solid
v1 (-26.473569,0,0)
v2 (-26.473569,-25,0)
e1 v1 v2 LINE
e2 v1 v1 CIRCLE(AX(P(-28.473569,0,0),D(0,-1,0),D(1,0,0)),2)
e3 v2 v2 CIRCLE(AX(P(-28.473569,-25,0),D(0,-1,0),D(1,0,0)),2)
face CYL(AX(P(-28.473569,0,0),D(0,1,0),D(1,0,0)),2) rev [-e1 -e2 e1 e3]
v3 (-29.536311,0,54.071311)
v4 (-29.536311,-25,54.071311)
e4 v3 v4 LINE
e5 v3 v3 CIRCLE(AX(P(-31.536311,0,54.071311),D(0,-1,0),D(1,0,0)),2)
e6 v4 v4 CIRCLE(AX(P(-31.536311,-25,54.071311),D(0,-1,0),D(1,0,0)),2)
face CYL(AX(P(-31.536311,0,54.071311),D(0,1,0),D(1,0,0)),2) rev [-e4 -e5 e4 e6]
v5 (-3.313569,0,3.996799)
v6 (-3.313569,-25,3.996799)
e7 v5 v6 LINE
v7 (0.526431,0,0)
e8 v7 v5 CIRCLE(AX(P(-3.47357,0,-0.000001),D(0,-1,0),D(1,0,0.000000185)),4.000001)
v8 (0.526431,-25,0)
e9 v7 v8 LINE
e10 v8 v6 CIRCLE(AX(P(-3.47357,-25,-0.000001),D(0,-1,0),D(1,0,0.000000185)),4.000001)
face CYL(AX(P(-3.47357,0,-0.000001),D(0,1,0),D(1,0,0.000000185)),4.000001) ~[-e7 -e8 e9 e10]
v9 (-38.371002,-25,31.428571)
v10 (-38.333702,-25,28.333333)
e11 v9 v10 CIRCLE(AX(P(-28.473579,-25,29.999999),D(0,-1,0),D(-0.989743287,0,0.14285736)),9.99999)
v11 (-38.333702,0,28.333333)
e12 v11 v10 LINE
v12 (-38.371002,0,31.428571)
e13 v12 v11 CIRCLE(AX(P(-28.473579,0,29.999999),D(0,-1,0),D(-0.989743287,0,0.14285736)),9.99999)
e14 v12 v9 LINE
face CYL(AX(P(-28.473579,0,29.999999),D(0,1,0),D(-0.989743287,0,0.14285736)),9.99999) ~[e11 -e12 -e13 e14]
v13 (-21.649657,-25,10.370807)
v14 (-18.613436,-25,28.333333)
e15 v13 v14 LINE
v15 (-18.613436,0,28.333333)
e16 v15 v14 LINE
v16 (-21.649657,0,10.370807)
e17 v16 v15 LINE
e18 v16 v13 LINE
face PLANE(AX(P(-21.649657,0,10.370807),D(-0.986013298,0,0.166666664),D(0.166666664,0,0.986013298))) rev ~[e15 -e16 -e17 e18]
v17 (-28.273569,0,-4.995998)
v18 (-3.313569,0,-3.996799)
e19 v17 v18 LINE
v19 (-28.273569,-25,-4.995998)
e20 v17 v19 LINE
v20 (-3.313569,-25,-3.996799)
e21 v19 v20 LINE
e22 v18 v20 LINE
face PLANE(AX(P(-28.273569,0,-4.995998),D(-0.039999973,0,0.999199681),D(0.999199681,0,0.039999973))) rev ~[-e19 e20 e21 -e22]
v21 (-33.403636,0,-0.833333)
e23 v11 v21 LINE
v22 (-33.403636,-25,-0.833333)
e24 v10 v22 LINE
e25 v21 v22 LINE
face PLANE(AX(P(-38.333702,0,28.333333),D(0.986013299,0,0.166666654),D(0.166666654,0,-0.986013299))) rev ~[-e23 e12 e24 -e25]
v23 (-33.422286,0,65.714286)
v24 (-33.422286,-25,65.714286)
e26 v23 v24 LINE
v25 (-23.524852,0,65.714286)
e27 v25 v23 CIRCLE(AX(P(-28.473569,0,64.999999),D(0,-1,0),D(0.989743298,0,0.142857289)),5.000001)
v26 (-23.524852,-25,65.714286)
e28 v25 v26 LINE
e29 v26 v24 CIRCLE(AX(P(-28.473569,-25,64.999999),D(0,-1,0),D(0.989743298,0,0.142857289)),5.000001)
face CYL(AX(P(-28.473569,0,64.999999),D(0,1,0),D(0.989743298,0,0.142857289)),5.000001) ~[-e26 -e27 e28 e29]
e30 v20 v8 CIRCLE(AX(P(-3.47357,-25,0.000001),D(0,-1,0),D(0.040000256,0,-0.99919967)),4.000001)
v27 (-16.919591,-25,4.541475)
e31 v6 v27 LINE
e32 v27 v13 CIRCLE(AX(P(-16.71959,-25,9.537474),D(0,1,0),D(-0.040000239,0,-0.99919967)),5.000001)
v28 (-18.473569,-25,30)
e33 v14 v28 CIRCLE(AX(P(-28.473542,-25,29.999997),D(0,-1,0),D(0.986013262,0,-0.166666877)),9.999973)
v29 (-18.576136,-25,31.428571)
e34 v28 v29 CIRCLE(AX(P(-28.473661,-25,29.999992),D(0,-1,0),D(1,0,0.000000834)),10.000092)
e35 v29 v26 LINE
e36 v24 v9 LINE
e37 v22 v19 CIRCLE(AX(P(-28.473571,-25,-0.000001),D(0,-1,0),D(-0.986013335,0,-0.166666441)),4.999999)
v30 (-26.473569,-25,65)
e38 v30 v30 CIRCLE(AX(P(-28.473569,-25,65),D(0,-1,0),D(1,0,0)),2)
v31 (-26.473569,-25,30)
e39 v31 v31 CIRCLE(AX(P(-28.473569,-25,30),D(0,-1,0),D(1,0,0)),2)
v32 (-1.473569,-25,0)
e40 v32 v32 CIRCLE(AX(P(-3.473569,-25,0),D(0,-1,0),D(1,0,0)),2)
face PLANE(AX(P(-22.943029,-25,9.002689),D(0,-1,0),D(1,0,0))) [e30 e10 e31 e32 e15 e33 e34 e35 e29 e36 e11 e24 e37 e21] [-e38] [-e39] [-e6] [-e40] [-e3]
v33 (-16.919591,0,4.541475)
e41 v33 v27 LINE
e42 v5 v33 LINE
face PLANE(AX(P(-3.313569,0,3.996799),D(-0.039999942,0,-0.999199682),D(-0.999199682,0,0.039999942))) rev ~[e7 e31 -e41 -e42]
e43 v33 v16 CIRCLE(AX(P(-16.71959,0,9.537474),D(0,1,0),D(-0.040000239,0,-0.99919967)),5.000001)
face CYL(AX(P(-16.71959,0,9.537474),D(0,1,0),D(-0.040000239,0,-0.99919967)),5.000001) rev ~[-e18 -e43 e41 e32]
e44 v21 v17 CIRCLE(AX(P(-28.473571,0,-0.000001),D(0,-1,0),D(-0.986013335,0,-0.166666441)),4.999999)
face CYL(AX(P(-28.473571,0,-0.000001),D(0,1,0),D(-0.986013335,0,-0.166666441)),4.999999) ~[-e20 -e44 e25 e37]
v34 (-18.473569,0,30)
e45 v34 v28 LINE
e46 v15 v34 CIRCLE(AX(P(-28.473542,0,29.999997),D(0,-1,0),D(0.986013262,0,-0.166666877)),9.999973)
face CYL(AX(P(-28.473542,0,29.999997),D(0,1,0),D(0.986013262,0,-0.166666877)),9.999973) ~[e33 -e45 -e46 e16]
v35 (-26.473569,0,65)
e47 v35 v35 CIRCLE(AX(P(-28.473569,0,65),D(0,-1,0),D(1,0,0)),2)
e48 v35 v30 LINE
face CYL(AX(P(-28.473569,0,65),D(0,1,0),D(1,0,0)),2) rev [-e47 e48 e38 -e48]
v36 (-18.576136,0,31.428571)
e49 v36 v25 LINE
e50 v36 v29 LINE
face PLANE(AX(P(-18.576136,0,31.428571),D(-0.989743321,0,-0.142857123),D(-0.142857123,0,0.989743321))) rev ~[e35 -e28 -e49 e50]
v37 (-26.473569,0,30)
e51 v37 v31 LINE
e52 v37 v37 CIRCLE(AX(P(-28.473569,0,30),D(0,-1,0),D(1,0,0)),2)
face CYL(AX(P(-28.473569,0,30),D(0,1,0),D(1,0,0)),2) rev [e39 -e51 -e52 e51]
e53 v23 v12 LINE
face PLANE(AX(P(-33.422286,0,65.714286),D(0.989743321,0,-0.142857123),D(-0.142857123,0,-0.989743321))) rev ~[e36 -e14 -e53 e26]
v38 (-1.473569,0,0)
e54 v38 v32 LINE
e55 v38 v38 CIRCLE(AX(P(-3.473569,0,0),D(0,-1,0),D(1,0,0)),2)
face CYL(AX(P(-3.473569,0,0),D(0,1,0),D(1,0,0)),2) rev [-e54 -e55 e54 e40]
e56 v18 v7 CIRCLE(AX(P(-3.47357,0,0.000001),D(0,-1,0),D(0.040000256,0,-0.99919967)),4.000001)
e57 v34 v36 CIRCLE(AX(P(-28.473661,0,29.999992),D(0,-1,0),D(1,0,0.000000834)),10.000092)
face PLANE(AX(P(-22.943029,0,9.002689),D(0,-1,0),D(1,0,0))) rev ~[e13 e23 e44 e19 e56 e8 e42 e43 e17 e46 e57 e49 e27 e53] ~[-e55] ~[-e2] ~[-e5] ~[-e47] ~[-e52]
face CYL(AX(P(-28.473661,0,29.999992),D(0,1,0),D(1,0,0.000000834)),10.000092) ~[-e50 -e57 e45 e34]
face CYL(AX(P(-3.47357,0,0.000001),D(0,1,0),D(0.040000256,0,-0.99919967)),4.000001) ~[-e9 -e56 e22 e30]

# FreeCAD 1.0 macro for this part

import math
import FreeCAD as App
import Part
import Sketcher

V = App.Vector
Q = App.Units.Quantity

doc = App.newDocument("Part")
body = doc.addObject("PartDesign::Body", "Body")

# Sketch on XZ plane
sketch1 = body.newObject("Sketcher::SketchObject", "Sketch")
sketch1.AttachmentSupport = (doc.getObject("XZ_Plane"), [""])
sketch1.MapMode = "FlatFace"
sketch1.addGeometry(Part.LineSegment(V(-28.273569, -4.995998, 0), V(-3.313569, -3.996799, 0)), False)
sketch1.addGeometry(Part.ArcOfCircle(Part.Circle(V(-3.47357, 0.000001, 0), V(0, 0, 1), 4.000001), math.radians(-87.707543), math.radians(-0.000011)), False)
sketch1.addGeometry(Part.ArcOfCircle(Part.Circle(V(-3.47357, -0.000001, 0), V(0, 0, 1), 4.000001), math.radians(0.000011), math.radians(87.707543)), False)
sketch1.addGeometry(Part.LineSegment(V(-3.313569, 3.996799, 0), V(-16.919591, 4.541475, 0)), False)
sketch1.addGeometry(Part.ArcOfCircle(Part.Circle(V(-16.71959, 9.537474, 0), V(0, 0, 1), 5.000001), math.radians(170.405937), math.radians(267.707544)), False)
sketch1.addGeometry(Part.LineSegment(V(-21.649657, 10.370807, 0), V(-18.613436, 28.333333, 0)), False)
sketch1.addGeometry(Part.ArcOfCircle(Part.Circle(V(-28.473542, 29.999997, 0), V(0, 0, 1), 9.999973), math.radians(-9.59408), math.radians(0.000016)), False)
sketch1.addGeometry(Part.ArcOfCircle(Part.Circle(V(-28.473661, 29.999992, 0), V(0, 0, 1), 10.000092), math.radians(0.000048), math.radians(8.21318)), False)
sketch1.addGeometry(Part.LineSegment(V(-18.576136, 31.428571, 0), V(-23.524852, 65.714286, 0)), False)
sketch1.addGeometry(Part.ArcOfCircle(Part.Circle(V(-28.473569, 64.999999, 0), V(0, 0, 1), 5.000001), math.radians(8.213219), math.radians(171.786781)), False)
sketch1.addGeometry(Part.LineSegment(V(-33.422286, 65.714286, 0), V(-38.371002, 31.428571, 0)), False)
sketch1.addGeometry(Part.ArcOfCircle(Part.Circle(V(-28.473579, 29.999999, 0), V(0, 0, 1), 9.99999), math.radians(171.786777), math.radians(189.594073)), False)
sketch1.addGeometry(Part.LineSegment(V(-38.333702, 28.333333, 0), V(-33.403636, -0.833333, 0)), False)
sketch1.addGeometry(Part.ArcOfCircle(Part.Circle(V(-28.473571, -0.000001, 0), V(0, 0, 1), 4.999999), math.radians(-170.405945), math.radians(-87.707538)), False)
sketch1.addGeometry(Part.Circle(V(-28.473569, 0, 0), V(0, 0, 1), 2), False)
sketch1.addGeometry(Part.Circle(V(-28.473569, 30, 0), V(0, 0, 1), 2), False)
sketch1.addGeometry(Part.Circle(V(-3.473569, 0, 0), V(0, 0, 1), 2), False)
sketch1.addGeometry(Part.Circle(V(-31.536311, 54.071311, 0), V(0, 0, 1), 2), False)
sketch1.addGeometry(Part.Circle(V(-28.473569, 65, 0), V(0, 0, 1), 2), False)
sketch1.addConstraint(Sketcher.Constraint("Coincident", 0, 2, 1, 1))
sketch1.addConstraint(Sketcher.Constraint("Coincident", 1, 2, 2, 1))
sketch1.addConstraint(Sketcher.Constraint("Coincident", 2, 2, 3, 1))
sketch1.addConstraint(Sketcher.Constraint("Coincident", 3, 2, 4, 2))
sketch1.addConstraint(Sketcher.Constraint("Coincident", 4, 1, 5, 1))
sketch1.addConstraint(Sketcher.Constraint("Coincident", 5, 2, 6, 1))
sketch1.addConstraint(Sketcher.Constraint("Coincident", 6, 2, 7, 1))
sketch1.addConstraint(Sketcher.Constraint("Coincident", 7, 2, 8, 1))
sketch1.addConstraint(Sketcher.Constraint("Coincident", 8, 2, 9, 1))
sketch1.addConstraint(Sketcher.Constraint("Coincident", 9, 2, 10, 1))
sketch1.addConstraint(Sketcher.Constraint("Coincident", 10, 2, 11, 1))
sketch1.addConstraint(Sketcher.Constraint("Coincident", 11, 2, 12, 1))
sketch1.addConstraint(Sketcher.Constraint("Coincident", 12, 2, 13, 1))
sketch1.addConstraint(Sketcher.Constraint("Coincident", 13, 2, 0, 1))
sketch1.addConstraint(Sketcher.Constraint("Coincident", 2, 3, 1, 3))
sketch1.addConstraint(Sketcher.Constraint("Coincident", 14, 3, 13, 3))
sketch1.addConstraint(Sketcher.Constraint("Coincident", 16, 3, 1, 3))
sketch1.addConstraint(Sketcher.Constraint("Coincident", 18, 3, 9, 3))
sketch1.addConstraint(Sketcher.Constraint("PointOnObject", 1, 3, -1))
sketch1.addConstraint(Sketcher.Constraint("PointOnObject", 13, 3, -1))
sketch1.addConstraint(Sketcher.Constraint("PointOnObject", 1, 2, -1))
sketch1.addConstraint(Sketcher.Constraint("Diameter", 14, Q("4 mm")))
sketch1.addConstraint(Sketcher.Constraint("Diameter", 15, Q("4 mm")))
sketch1.addConstraint(Sketcher.Constraint("Diameter", 16, Q("4 mm")))
sketch1.addConstraint(Sketcher.Constraint("Diameter", 17, Q("4 mm")))
sketch1.addConstraint(Sketcher.Constraint("Diameter", 18, Q("4 mm")))
sketch1.addConstraint(Sketcher.Constraint("Radius", 1, Q("4.000001 mm")))
sketch1.addConstraint(Sketcher.Constraint("Radius", 4, Q("5.000001 mm")))
sketch1.addConstraint(Sketcher.Constraint("Radius", 9, Q("5.000001 mm")))
sketch1.addConstraint(Sketcher.Constraint("Radius", 13, Q("4.999999 mm")))
sketch1.addConstraint(Sketcher.Constraint("DistanceY", -1, 1, 9, 3, Q("64.999999 mm")))
sketch1.addConstraint(Sketcher.Constraint("DistanceY", -1, 1, 11, 3, Q("29.999999 mm")))
sketch1.addConstraint(Sketcher.Constraint("DistanceY", -1, 1, 15, 3, Q("30 mm")))
sketch1.addConstraint(Sketcher.Constraint("DistanceY", -1, 1, 6, 2, Q("30 mm")))
sketch1.addConstraint(Sketcher.Constraint("DistanceX", 9, 3, 1, 3, Q("24.999999 mm")))
sketch1.addConstraint(Sketcher.Constraint("DistanceX", 13, 3, 2, 3, Q("25.000001 mm")))
sketch1.addConstraint(Sketcher.Constraint("DistanceY", 13, 3, 6, 3, Q("29.999998 mm")))
sketch1.addConstraint(Sketcher.Constraint("DistanceX", 15, 3, 6, 2, Q("10 mm")))
sketch1.addConstraint(Sketcher.Constraint("DistanceX", 3, 2, 4, 3, Q("0.200001 mm")))
sketch1.addConstraint(Sketcher.Constraint("DistanceX", 13, 3, 13, 2, Q("0.200002 mm")))
sketch1.addConstraint(Sketcher.Constraint("Radius", 11, Q("9.99999 mm")))
sketch1.addConstraint(Sketcher.Constraint("DistanceX", 2, 3, 0, 2, Q("0.160001 mm")))
sketch1.addConstraint(Sketcher.Constraint("DistanceX", 1, 3, 2, 2, Q("0.160001 mm")))
sketch1.addConstraint(Sketcher.Constraint("DistanceX", 10, 2, -1, 1, Q("38.371002 mm")))
sketch1.addConstraint(Sketcher.Constraint("Radius", 6, Q("9.999973 mm")))
sketch1.addConstraint(Sketcher.Constraint("Radius", 7, Q("10.000092 mm")))
sketch1.addConstraint(Sketcher.Constraint("Distance", 12, Q("29.580398 mm")))
sketch1.addConstraint(Sketcher.Constraint("DistanceX", 5, 2, 7, 2, Q("0.0373 mm")))
sketch1.addConstraint(Sketcher.Constraint("DistanceX", 10, 2, 11, 2, Q("0.0373 mm")))
sketch1.addConstraint(Sketcher.Constraint("Distance", 3, Q("13.61692 mm")))
sketch1.addConstraint(Sketcher.Constraint("DistanceX", 1, 3, -1, 1, Q("3.47357 mm")))
sketch1.addConstraint(Sketcher.Constraint("DistanceX", 4, 3, -1, 1, Q("16.71959 mm")))
sketch1.addConstraint(Sketcher.Constraint("DistanceX", 6, 3, -1, 1, Q("28.473542 mm")))
sketch1.addConstraint(Sketcher.Constraint("DistanceY", -1, 1, 7, 3, Q("29.999992 mm")))
sketch1.addConstraint(Sketcher.Constraint("DistanceX", 11, 3, -1, 1, Q("28.473579 mm")))
sketch1.addConstraint(Sketcher.Constraint("DistanceX", 17, 3, -1, 1, Q("31.536311 mm")))
sketch1.addConstraint(Sketcher.Constraint("DistanceY", -1, 1, 17, 3, Q("54.071311 mm")))
sketch1.addConstraint(Sketcher.Constraint("DistanceY", -1, 1, 7, 2, Q("31.428571 mm")))
sketch1.addConstraint(Sketcher.Constraint("DistanceX", 8, 2, -1, 1, Q("23.524852 mm")))
sketch1.addConstraint(Sketcher.Constraint("DistanceY", 3, 2, 4, 1, Q("5.829332 mm")))
sketch1.addConstraint(Sketcher.Constraint("Distance", 10, Q("34.641017 mm")))
pad1 = body.newObject("PartDesign::Pad", "Pad")
pad1.Profile = sketch1
pad1.Length = 25

doc.recompute()
